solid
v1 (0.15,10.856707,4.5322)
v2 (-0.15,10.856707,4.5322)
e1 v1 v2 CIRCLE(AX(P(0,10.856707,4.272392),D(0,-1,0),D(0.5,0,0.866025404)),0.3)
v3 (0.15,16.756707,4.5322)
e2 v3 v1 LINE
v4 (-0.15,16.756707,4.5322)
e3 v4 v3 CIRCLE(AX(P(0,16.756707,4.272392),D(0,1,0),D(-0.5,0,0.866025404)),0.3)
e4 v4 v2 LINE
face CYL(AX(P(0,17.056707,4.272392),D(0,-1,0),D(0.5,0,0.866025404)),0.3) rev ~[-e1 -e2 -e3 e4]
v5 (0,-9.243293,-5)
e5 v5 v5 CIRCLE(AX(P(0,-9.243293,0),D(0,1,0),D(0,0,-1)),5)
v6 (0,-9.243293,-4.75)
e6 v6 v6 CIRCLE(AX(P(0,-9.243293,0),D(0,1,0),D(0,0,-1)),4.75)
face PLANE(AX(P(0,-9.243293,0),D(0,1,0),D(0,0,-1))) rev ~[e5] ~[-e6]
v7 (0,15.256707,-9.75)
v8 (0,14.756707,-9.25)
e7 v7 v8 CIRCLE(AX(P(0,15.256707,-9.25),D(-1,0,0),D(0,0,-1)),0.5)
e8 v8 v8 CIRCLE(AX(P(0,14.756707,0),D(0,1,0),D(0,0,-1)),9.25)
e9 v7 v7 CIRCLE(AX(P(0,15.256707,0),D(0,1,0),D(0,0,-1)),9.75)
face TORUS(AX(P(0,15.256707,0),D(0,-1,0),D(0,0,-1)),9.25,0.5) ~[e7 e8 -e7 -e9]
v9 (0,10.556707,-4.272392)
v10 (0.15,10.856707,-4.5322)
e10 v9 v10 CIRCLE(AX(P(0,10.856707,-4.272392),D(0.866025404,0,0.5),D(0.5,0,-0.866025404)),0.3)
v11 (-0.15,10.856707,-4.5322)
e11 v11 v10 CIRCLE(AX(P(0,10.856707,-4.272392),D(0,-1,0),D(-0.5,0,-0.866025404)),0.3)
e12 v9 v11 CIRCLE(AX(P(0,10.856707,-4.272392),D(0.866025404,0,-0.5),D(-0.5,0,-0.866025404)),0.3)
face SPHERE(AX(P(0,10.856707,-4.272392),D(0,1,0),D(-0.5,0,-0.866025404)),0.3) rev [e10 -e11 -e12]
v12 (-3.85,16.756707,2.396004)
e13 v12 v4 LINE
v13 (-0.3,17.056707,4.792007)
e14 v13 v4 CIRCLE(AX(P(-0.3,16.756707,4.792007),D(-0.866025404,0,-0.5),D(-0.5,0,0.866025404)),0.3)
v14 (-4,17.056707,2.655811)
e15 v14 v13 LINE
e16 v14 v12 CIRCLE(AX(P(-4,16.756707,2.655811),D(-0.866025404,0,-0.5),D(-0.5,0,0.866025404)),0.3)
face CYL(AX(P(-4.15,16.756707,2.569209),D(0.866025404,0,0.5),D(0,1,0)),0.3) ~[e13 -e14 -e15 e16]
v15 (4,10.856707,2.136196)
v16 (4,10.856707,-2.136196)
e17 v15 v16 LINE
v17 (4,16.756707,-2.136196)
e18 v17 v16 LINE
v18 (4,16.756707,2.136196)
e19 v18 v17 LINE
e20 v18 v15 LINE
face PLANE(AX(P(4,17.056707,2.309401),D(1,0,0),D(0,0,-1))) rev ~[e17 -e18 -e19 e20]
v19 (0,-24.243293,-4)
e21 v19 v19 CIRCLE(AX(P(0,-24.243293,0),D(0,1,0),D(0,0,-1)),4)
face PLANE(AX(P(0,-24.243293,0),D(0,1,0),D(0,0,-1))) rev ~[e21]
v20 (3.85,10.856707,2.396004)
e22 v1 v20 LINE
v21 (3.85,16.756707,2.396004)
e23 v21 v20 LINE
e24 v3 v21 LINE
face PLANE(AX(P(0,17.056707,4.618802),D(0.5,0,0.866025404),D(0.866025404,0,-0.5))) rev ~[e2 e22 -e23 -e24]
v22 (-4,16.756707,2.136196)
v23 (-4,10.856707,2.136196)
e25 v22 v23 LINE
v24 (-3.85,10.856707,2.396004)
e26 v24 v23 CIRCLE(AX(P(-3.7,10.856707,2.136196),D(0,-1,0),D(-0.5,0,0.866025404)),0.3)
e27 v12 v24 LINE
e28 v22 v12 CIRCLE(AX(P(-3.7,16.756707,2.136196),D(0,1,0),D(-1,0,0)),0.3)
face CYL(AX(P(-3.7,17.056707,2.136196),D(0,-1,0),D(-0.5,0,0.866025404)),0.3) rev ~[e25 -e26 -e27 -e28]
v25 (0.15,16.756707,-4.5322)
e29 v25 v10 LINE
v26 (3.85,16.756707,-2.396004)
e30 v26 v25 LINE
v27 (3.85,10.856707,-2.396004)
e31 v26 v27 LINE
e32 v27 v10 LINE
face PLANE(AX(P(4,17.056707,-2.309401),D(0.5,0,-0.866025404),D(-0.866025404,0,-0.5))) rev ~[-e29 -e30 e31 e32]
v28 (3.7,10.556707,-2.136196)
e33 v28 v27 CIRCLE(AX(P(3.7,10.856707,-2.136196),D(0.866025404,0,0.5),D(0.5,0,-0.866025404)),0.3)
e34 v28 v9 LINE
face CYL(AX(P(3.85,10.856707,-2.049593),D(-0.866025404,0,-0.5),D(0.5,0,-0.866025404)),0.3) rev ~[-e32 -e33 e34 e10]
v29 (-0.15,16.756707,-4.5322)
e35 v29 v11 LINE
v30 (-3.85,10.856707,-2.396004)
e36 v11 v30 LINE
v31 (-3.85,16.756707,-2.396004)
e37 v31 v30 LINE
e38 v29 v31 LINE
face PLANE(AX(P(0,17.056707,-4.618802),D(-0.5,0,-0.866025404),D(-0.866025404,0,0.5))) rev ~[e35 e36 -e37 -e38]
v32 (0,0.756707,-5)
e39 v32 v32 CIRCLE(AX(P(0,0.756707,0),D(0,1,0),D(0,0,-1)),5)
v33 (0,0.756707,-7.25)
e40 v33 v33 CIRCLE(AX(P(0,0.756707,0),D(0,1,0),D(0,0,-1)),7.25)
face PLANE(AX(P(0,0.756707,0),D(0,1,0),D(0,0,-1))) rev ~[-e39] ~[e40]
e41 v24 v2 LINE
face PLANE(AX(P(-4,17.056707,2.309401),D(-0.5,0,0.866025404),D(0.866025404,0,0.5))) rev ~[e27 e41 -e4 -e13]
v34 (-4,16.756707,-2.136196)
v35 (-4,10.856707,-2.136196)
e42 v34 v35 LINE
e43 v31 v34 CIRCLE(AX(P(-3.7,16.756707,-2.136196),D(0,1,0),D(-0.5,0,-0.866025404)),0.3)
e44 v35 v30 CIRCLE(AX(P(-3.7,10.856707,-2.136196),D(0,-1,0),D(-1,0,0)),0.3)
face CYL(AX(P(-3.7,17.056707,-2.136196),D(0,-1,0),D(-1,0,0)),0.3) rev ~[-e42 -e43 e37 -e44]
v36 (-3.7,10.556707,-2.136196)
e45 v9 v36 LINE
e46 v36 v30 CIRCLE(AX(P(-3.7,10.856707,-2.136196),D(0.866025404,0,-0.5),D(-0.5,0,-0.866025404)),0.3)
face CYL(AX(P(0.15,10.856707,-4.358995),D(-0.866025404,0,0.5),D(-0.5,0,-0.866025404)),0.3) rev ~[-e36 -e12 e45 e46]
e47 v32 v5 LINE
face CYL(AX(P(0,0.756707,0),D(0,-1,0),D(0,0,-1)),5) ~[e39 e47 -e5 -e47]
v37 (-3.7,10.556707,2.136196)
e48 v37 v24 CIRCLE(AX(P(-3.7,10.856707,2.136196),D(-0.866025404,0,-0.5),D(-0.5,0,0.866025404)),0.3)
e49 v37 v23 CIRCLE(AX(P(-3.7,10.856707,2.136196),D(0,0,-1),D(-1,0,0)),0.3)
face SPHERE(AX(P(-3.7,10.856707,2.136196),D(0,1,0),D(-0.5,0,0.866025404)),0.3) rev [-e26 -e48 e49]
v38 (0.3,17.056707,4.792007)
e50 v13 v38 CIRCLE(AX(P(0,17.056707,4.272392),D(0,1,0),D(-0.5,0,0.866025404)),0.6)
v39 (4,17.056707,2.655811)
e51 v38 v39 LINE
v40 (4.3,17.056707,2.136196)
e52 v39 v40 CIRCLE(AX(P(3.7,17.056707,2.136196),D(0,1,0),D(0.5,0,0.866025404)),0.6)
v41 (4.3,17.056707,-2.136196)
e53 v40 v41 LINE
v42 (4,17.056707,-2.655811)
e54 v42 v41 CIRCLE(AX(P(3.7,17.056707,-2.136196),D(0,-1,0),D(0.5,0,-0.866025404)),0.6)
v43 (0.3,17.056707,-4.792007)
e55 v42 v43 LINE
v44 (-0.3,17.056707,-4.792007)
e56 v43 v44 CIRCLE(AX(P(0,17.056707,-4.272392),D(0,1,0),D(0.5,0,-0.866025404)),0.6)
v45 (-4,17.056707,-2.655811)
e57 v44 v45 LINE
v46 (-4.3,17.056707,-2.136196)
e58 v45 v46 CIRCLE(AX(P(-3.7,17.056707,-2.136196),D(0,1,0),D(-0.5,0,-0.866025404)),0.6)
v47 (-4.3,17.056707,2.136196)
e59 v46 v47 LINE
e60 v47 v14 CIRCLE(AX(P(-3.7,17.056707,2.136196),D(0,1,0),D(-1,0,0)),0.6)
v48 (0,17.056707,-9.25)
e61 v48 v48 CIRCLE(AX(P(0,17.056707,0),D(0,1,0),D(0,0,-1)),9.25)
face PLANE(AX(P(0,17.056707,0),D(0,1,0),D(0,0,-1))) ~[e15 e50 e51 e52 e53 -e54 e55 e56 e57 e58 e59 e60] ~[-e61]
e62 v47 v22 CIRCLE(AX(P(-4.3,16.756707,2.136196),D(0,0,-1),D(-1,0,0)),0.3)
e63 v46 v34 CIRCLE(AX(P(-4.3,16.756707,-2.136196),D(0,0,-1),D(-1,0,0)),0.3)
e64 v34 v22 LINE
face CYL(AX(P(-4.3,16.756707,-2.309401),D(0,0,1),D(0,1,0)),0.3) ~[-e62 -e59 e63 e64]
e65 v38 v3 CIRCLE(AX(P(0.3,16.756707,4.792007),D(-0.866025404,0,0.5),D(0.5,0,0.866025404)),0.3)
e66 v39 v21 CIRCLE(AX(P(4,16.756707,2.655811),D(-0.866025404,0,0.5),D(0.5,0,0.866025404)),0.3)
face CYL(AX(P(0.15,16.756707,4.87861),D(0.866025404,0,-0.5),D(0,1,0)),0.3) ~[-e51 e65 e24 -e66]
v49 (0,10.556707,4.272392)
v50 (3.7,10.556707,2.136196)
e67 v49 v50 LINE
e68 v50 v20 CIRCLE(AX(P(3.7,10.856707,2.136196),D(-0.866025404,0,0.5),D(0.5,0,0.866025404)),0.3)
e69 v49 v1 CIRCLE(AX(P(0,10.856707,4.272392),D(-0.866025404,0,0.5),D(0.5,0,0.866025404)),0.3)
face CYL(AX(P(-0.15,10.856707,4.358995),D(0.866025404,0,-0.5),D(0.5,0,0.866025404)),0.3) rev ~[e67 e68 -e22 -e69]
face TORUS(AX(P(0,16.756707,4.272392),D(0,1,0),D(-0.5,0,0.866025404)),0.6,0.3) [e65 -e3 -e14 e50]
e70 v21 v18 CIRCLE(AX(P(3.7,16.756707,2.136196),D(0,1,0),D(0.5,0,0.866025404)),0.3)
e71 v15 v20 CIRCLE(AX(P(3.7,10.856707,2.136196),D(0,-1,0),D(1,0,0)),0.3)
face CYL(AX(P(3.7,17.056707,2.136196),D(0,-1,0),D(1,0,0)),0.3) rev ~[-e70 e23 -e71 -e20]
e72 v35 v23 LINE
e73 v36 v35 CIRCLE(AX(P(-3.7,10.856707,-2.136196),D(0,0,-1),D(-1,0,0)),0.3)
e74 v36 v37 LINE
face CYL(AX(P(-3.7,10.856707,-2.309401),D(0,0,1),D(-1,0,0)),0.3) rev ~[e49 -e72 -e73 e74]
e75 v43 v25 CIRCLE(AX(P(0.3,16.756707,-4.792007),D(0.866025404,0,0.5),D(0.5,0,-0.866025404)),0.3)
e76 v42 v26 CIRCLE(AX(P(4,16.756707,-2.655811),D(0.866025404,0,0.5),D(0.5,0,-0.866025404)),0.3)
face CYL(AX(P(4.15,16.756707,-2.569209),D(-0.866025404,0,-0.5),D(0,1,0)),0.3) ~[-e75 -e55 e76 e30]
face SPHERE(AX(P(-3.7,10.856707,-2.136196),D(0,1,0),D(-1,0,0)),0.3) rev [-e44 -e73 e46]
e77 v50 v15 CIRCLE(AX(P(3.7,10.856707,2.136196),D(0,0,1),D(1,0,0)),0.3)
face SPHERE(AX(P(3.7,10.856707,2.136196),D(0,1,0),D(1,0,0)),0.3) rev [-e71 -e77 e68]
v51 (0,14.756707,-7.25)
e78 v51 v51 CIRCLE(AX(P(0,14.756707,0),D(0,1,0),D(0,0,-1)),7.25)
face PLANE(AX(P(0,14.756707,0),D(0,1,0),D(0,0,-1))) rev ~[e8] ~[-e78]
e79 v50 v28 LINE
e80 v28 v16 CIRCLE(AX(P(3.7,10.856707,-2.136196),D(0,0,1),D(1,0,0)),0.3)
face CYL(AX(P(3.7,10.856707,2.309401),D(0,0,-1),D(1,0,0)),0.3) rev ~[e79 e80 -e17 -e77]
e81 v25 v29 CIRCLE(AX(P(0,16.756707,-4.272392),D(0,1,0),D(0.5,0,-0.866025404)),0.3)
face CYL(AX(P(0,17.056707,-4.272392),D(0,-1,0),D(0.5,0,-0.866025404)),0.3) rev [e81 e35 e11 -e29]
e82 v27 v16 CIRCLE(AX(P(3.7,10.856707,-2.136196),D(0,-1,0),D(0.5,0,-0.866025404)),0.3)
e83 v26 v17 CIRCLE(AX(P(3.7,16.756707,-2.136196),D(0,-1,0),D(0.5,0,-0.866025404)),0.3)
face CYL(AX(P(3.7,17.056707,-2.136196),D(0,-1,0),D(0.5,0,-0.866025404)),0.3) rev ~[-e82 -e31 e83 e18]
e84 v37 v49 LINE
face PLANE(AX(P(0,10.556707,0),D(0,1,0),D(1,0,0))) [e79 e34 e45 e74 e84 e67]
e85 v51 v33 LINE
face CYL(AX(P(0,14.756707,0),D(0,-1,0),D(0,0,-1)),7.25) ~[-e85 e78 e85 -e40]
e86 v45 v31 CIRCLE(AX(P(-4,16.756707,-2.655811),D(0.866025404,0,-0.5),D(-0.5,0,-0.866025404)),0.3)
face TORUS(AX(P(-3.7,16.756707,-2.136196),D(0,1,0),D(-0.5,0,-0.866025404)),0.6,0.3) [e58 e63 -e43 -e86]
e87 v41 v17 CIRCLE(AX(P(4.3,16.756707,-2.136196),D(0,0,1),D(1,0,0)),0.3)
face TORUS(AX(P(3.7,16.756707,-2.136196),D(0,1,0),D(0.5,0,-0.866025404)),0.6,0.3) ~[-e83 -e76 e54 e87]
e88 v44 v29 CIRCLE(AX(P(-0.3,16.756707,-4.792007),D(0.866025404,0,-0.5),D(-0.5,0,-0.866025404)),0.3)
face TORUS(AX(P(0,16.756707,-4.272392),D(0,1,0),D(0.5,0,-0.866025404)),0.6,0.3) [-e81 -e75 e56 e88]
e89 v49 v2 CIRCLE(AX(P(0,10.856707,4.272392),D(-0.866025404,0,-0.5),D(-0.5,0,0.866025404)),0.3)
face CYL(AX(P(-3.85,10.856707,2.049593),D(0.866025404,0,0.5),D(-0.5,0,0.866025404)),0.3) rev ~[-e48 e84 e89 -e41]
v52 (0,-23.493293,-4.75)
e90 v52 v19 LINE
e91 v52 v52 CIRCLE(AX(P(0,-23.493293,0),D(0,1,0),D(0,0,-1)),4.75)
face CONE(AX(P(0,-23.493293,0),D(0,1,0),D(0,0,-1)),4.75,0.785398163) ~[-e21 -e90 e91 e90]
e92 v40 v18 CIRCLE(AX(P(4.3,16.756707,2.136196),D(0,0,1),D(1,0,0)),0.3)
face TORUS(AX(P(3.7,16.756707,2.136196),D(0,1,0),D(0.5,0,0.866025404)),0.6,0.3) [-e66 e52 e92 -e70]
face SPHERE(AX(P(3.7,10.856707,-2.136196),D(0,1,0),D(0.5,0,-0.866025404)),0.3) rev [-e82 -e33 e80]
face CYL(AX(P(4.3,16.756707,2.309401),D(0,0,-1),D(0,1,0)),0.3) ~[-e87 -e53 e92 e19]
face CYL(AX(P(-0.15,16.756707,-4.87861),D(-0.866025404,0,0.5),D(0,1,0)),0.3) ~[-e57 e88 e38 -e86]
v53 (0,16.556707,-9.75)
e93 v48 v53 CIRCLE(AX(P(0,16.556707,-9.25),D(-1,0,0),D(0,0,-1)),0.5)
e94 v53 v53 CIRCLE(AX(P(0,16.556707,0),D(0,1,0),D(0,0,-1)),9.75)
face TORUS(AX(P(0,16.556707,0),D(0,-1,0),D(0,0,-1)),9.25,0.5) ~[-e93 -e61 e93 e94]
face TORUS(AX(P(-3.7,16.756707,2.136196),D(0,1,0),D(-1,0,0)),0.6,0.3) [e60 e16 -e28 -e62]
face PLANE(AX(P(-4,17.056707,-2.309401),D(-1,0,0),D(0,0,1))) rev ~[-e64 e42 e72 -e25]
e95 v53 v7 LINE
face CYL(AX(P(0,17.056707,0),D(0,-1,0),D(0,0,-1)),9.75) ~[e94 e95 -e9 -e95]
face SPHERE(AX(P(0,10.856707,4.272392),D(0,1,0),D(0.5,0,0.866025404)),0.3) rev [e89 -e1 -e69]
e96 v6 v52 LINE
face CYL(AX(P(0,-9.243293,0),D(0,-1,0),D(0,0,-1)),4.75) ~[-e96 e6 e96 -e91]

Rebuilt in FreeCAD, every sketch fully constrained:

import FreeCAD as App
import Part
import Sketcher
from FreeCAD import Vector
Q = App.Units.Quantity


def edges_at(feature, points):
    """Names of the edges that pass closest to the given points."""
    edges = feature.Shape.Edges
    near = lambda p: min(range(len(edges)), key=lambda i: edges[i].distToShape(Part.Vertex(*p))[0])
    return sorted({f"Edge{near(p) + 1}" for p in points})

doc = App.newDocument("Part")
params = doc.addObject("Spreadsheet::Sheet", "Params")
for row, (alias, value) in enumerate([
    ("sketch1_height", "15 mm"),
    ("sketch1_height2", "10 mm"),
    ("sketch1_height3", "14 mm"),
    ("sketch1_width", "2.5 mm"),
    ("sketch1_height4", "41.3 mm"),
    ("revolution_angle", "360 deg"),
    ("fillet_radius", "0.5 mm"),
    ("pocket1_length", "6.5 mm"),
    ("fillet2_radius", "0.3 mm"),
    ("chamfer_size", "0.75 mm"),
], start=1):
    params.set(f"A{row}", alias)
    params.set(f"B{row}", "=" + value)
    params.setAlias(f"B{row}", alias)

body = doc.addObject("PartDesign::Body", "Body")

sketch1 = body.newObject("Sketcher::SketchObject", "Sketch")
sketch1.AttachmentSupport = (doc.getObject("XY_Plane"), [""])
sketch1.MapMode = "FlatFace"
sketch1.addGeometry([
    Part.LineSegment(Vector(9.75, 17.06, 0), Vector(0, 17.06, 0)),
    Part.LineSegment(Vector(0, 17.06, 0), Vector(0, -24.24, 0)),
    Part.LineSegment(Vector(0, -24.24, 0), Vector(4.75, -24.24, 0)),
    Part.LineSegment(Vector(4.75, -24.24, 0), Vector(4.75, -9.24, 0)),
    Part.LineSegment(Vector(4.75, -9.24, 0), Vector(5, -9.24, 0)),
    Part.LineSegment(Vector(5, -9.24, 0), Vector(5, 0.76, 0)),
    Part.LineSegment(Vector(5, 0.76, 0), Vector(7.25, 0.76, 0)),
    Part.LineSegment(Vector(7.25, 0.76, 0), Vector(7.25, 14.76, 0)),
    Part.LineSegment(Vector(7.25, 14.76, 0), Vector(9.75, 14.76, 0)),
    Part.LineSegment(Vector(9.75, 14.76, 0), Vector(9.75, 17.06, 0)),
], False)
sketch1.addConstraint([
    Sketcher.Constraint("Coincident", 0, 2, 1, 1),
    Sketcher.Constraint("Coincident", 1, 2, 2, 1),
    Sketcher.Constraint("Coincident", 2, 2, 3, 1),
    Sketcher.Constraint("Coincident", 3, 2, 4, 1),
    Sketcher.Constraint("Coincident", 4, 2, 5, 1),
    Sketcher.Constraint("Coincident", 5, 2, 6, 1),
    Sketcher.Constraint("Coincident", 6, 2, 7, 1),
    Sketcher.Constraint("Coincident", 7, 2, 8, 1),
    Sketcher.Constraint("Coincident", 8, 2, 9, 1),
    Sketcher.Constraint("Coincident", 9, 2, 0, 1),
    Sketcher.Constraint("Horizontal", 0),
    Sketcher.Constraint("Vertical", 1),
    Sketcher.Constraint("Horizontal", 2),
    Sketcher.Constraint("Vertical", 3),
    Sketcher.Constraint("Horizontal", 4),
    Sketcher.Constraint("Vertical", 5),
    Sketcher.Constraint("Horizontal", 6),
    Sketcher.Constraint("Vertical", 7),
    Sketcher.Constraint("Horizontal", 8),
    Sketcher.Constraint("Vertical", 9),
    Sketcher.Constraint("PointOnObject", 0, 2, -2),
    Sketcher.Constraint("DistanceY", 3, 1, 3, 2, 15.0),
    Sketcher.Constraint("DistanceY", 5, 1, 5, 2, 10.0),
    Sketcher.Constraint("DistanceY", 7, 1, 7, 2, 14.0),
    Sketcher.Constraint("DistanceX", 8, 1, 8, 2, 2.5),
    Sketcher.Constraint("DistanceY", 1, 2, 1, 1, 41.3),
    Sketcher.Constraint("DistanceX", -1, 1, 4, 2, 5.0),
    Sketcher.Constraint("DistanceX", 0, 2, 0, 1, 9.75),
    Sketcher.Constraint("DistanceX", 2, 1, 2, 2, 4.75),
    Sketcher.Constraint("DistanceY", -1, 1, 0, 2, 17.056707),
])
sketch1.setExpression("Constraints[21]", "Params.sketch1_height")
sketch1.setExpression("Constraints[22]", "Params.sketch1_height2")
sketch1.setExpression("Constraints[23]", "Params.sketch1_height3")
sketch1.setExpression("Constraints[24]", "Params.sketch1_width")
sketch1.setExpression("Constraints[25]", "Params.sketch1_height4")
revolution = body.newObject("PartDesign::Revolution", "Revolution")
revolution.Profile = sketch1
revolution.ReferenceAxis = (sketch1, ["V_Axis"])
revolution.setExpression("Angle", "Params.revolution_angle")
doc.recompute()

fillet = body.newObject("PartDesign::Fillet", "Fillet")
fillet.Base = (revolution, edges_at(revolution, [(0, 14.757, 9.75), (0, 17.057, 9.75)]))
fillet.setExpression("Radius", "Params.fillet_radius")

sketch2 = body.newObject("Sketcher::SketchObject", "Sketch001")
sketch2.AttachmentSupport = (doc.getObject("XZ_Plane"), [""])
sketch2.MapMode = "FlatFace"
sketch2.AttachmentOffset = App.Placement(Vector(0, 0, -17.056707), App.Rotation())
sketch2.addGeometry([
    Part.LineSegment(Vector(0, -4.6, 0), Vector(-4, -2.3, 0)),
    Part.LineSegment(Vector(-4, -2.3, 0), Vector(-4, 2.3, 0)),
    Part.LineSegment(Vector(-4, 2.3, 0), Vector(0, 4.6, 0)),
    Part.LineSegment(Vector(0, 4.6, 0), Vector(4, 2.3, 0)),
    Part.LineSegment(Vector(4, 2.3, 0), Vector(4, -2.3, 0)),
    Part.LineSegment(Vector(4, -2.3, 0), Vector(0, -4.6, 0)),
], False)
sketch2.addConstraint([
    Sketcher.Constraint("Coincident", 0, 2, 1, 1),
    Sketcher.Constraint("Coincident", 1, 2, 2, 1),
    Sketcher.Constraint("Coincident", 2, 2, 3, 1),
    Sketcher.Constraint("Coincident", 3, 2, 4, 1),
    Sketcher.Constraint("Coincident", 4, 2, 5, 1),
    Sketcher.Constraint("Coincident", 5, 2, 0, 1),
    Sketcher.Constraint("Vertical", 1),
    Sketcher.Constraint("Vertical", 4),
    Sketcher.Constraint("Symmetric", 0, 2, 3, 2, -1, 1),
    Sketcher.Constraint("Symmetric", 2, 2, 5, 2, -1, 1),
    Sketcher.Constraint("PointOnObject", 2, 2, -2),
    Sketcher.Constraint("Parallel", 2, 5),
    Sketcher.Constraint("Horizontal", 1, 2, 3, 2),
    Sketcher.Constraint("Angle", 0, Q("150 deg")),
    Sketcher.Constraint("DistanceX", 0, 2, -1, 1, 4.0),
    Sketcher.Constraint("DistanceY", 0, 2, -1, 1, 2.309401),
])
pocket1 = body.newObject("PartDesign::Pocket", "Pocket")
pocket1.Profile = sketch2
pocket1.setExpression("Length", "Params.pocket1_length")
pocket1.Reversed = True
doc.recompute()

fillet2 = body.newObject("PartDesign::Fillet", "Fillet001")
fillet2.Base = (pocket1, edges_at(pocket1, [
    (2, 10.557, -3.464),
    (0, 13.807, -4.619),
    (4, 10.557, 0),
    (4, 13.807, -2.309),
    (2, 10.557, 3.464),
    (4, 13.807, 2.309),
    (-2, 10.557, 3.464),
    (0, 13.807, 4.619),
    (-4, 10.557, 0),
    (-4, 13.807, 2.309),
    (-2, 10.557, -3.464),
    (-4, 13.807, -2.309),
    (2, 17.057, -3.464),
    (-2, 17.057, -3.464),
    (-4, 17.057, 0),
    (-2, 17.057, 3.464),
    (2, 17.057, 3.464),
    (4, 17.057, 0),
]))
fillet2.setExpression("Radius", "Params.fillet2_radius")
doc.recompute()

chamfer = body.newObject("PartDesign::Chamfer", "Chamfer")
chamfer.Base = (fillet2, edges_at(fillet2, [(0, -24.243, 4.75)]))
chamfer.setExpression("Size", "Params.chamfer_size")

doc.recompute()
